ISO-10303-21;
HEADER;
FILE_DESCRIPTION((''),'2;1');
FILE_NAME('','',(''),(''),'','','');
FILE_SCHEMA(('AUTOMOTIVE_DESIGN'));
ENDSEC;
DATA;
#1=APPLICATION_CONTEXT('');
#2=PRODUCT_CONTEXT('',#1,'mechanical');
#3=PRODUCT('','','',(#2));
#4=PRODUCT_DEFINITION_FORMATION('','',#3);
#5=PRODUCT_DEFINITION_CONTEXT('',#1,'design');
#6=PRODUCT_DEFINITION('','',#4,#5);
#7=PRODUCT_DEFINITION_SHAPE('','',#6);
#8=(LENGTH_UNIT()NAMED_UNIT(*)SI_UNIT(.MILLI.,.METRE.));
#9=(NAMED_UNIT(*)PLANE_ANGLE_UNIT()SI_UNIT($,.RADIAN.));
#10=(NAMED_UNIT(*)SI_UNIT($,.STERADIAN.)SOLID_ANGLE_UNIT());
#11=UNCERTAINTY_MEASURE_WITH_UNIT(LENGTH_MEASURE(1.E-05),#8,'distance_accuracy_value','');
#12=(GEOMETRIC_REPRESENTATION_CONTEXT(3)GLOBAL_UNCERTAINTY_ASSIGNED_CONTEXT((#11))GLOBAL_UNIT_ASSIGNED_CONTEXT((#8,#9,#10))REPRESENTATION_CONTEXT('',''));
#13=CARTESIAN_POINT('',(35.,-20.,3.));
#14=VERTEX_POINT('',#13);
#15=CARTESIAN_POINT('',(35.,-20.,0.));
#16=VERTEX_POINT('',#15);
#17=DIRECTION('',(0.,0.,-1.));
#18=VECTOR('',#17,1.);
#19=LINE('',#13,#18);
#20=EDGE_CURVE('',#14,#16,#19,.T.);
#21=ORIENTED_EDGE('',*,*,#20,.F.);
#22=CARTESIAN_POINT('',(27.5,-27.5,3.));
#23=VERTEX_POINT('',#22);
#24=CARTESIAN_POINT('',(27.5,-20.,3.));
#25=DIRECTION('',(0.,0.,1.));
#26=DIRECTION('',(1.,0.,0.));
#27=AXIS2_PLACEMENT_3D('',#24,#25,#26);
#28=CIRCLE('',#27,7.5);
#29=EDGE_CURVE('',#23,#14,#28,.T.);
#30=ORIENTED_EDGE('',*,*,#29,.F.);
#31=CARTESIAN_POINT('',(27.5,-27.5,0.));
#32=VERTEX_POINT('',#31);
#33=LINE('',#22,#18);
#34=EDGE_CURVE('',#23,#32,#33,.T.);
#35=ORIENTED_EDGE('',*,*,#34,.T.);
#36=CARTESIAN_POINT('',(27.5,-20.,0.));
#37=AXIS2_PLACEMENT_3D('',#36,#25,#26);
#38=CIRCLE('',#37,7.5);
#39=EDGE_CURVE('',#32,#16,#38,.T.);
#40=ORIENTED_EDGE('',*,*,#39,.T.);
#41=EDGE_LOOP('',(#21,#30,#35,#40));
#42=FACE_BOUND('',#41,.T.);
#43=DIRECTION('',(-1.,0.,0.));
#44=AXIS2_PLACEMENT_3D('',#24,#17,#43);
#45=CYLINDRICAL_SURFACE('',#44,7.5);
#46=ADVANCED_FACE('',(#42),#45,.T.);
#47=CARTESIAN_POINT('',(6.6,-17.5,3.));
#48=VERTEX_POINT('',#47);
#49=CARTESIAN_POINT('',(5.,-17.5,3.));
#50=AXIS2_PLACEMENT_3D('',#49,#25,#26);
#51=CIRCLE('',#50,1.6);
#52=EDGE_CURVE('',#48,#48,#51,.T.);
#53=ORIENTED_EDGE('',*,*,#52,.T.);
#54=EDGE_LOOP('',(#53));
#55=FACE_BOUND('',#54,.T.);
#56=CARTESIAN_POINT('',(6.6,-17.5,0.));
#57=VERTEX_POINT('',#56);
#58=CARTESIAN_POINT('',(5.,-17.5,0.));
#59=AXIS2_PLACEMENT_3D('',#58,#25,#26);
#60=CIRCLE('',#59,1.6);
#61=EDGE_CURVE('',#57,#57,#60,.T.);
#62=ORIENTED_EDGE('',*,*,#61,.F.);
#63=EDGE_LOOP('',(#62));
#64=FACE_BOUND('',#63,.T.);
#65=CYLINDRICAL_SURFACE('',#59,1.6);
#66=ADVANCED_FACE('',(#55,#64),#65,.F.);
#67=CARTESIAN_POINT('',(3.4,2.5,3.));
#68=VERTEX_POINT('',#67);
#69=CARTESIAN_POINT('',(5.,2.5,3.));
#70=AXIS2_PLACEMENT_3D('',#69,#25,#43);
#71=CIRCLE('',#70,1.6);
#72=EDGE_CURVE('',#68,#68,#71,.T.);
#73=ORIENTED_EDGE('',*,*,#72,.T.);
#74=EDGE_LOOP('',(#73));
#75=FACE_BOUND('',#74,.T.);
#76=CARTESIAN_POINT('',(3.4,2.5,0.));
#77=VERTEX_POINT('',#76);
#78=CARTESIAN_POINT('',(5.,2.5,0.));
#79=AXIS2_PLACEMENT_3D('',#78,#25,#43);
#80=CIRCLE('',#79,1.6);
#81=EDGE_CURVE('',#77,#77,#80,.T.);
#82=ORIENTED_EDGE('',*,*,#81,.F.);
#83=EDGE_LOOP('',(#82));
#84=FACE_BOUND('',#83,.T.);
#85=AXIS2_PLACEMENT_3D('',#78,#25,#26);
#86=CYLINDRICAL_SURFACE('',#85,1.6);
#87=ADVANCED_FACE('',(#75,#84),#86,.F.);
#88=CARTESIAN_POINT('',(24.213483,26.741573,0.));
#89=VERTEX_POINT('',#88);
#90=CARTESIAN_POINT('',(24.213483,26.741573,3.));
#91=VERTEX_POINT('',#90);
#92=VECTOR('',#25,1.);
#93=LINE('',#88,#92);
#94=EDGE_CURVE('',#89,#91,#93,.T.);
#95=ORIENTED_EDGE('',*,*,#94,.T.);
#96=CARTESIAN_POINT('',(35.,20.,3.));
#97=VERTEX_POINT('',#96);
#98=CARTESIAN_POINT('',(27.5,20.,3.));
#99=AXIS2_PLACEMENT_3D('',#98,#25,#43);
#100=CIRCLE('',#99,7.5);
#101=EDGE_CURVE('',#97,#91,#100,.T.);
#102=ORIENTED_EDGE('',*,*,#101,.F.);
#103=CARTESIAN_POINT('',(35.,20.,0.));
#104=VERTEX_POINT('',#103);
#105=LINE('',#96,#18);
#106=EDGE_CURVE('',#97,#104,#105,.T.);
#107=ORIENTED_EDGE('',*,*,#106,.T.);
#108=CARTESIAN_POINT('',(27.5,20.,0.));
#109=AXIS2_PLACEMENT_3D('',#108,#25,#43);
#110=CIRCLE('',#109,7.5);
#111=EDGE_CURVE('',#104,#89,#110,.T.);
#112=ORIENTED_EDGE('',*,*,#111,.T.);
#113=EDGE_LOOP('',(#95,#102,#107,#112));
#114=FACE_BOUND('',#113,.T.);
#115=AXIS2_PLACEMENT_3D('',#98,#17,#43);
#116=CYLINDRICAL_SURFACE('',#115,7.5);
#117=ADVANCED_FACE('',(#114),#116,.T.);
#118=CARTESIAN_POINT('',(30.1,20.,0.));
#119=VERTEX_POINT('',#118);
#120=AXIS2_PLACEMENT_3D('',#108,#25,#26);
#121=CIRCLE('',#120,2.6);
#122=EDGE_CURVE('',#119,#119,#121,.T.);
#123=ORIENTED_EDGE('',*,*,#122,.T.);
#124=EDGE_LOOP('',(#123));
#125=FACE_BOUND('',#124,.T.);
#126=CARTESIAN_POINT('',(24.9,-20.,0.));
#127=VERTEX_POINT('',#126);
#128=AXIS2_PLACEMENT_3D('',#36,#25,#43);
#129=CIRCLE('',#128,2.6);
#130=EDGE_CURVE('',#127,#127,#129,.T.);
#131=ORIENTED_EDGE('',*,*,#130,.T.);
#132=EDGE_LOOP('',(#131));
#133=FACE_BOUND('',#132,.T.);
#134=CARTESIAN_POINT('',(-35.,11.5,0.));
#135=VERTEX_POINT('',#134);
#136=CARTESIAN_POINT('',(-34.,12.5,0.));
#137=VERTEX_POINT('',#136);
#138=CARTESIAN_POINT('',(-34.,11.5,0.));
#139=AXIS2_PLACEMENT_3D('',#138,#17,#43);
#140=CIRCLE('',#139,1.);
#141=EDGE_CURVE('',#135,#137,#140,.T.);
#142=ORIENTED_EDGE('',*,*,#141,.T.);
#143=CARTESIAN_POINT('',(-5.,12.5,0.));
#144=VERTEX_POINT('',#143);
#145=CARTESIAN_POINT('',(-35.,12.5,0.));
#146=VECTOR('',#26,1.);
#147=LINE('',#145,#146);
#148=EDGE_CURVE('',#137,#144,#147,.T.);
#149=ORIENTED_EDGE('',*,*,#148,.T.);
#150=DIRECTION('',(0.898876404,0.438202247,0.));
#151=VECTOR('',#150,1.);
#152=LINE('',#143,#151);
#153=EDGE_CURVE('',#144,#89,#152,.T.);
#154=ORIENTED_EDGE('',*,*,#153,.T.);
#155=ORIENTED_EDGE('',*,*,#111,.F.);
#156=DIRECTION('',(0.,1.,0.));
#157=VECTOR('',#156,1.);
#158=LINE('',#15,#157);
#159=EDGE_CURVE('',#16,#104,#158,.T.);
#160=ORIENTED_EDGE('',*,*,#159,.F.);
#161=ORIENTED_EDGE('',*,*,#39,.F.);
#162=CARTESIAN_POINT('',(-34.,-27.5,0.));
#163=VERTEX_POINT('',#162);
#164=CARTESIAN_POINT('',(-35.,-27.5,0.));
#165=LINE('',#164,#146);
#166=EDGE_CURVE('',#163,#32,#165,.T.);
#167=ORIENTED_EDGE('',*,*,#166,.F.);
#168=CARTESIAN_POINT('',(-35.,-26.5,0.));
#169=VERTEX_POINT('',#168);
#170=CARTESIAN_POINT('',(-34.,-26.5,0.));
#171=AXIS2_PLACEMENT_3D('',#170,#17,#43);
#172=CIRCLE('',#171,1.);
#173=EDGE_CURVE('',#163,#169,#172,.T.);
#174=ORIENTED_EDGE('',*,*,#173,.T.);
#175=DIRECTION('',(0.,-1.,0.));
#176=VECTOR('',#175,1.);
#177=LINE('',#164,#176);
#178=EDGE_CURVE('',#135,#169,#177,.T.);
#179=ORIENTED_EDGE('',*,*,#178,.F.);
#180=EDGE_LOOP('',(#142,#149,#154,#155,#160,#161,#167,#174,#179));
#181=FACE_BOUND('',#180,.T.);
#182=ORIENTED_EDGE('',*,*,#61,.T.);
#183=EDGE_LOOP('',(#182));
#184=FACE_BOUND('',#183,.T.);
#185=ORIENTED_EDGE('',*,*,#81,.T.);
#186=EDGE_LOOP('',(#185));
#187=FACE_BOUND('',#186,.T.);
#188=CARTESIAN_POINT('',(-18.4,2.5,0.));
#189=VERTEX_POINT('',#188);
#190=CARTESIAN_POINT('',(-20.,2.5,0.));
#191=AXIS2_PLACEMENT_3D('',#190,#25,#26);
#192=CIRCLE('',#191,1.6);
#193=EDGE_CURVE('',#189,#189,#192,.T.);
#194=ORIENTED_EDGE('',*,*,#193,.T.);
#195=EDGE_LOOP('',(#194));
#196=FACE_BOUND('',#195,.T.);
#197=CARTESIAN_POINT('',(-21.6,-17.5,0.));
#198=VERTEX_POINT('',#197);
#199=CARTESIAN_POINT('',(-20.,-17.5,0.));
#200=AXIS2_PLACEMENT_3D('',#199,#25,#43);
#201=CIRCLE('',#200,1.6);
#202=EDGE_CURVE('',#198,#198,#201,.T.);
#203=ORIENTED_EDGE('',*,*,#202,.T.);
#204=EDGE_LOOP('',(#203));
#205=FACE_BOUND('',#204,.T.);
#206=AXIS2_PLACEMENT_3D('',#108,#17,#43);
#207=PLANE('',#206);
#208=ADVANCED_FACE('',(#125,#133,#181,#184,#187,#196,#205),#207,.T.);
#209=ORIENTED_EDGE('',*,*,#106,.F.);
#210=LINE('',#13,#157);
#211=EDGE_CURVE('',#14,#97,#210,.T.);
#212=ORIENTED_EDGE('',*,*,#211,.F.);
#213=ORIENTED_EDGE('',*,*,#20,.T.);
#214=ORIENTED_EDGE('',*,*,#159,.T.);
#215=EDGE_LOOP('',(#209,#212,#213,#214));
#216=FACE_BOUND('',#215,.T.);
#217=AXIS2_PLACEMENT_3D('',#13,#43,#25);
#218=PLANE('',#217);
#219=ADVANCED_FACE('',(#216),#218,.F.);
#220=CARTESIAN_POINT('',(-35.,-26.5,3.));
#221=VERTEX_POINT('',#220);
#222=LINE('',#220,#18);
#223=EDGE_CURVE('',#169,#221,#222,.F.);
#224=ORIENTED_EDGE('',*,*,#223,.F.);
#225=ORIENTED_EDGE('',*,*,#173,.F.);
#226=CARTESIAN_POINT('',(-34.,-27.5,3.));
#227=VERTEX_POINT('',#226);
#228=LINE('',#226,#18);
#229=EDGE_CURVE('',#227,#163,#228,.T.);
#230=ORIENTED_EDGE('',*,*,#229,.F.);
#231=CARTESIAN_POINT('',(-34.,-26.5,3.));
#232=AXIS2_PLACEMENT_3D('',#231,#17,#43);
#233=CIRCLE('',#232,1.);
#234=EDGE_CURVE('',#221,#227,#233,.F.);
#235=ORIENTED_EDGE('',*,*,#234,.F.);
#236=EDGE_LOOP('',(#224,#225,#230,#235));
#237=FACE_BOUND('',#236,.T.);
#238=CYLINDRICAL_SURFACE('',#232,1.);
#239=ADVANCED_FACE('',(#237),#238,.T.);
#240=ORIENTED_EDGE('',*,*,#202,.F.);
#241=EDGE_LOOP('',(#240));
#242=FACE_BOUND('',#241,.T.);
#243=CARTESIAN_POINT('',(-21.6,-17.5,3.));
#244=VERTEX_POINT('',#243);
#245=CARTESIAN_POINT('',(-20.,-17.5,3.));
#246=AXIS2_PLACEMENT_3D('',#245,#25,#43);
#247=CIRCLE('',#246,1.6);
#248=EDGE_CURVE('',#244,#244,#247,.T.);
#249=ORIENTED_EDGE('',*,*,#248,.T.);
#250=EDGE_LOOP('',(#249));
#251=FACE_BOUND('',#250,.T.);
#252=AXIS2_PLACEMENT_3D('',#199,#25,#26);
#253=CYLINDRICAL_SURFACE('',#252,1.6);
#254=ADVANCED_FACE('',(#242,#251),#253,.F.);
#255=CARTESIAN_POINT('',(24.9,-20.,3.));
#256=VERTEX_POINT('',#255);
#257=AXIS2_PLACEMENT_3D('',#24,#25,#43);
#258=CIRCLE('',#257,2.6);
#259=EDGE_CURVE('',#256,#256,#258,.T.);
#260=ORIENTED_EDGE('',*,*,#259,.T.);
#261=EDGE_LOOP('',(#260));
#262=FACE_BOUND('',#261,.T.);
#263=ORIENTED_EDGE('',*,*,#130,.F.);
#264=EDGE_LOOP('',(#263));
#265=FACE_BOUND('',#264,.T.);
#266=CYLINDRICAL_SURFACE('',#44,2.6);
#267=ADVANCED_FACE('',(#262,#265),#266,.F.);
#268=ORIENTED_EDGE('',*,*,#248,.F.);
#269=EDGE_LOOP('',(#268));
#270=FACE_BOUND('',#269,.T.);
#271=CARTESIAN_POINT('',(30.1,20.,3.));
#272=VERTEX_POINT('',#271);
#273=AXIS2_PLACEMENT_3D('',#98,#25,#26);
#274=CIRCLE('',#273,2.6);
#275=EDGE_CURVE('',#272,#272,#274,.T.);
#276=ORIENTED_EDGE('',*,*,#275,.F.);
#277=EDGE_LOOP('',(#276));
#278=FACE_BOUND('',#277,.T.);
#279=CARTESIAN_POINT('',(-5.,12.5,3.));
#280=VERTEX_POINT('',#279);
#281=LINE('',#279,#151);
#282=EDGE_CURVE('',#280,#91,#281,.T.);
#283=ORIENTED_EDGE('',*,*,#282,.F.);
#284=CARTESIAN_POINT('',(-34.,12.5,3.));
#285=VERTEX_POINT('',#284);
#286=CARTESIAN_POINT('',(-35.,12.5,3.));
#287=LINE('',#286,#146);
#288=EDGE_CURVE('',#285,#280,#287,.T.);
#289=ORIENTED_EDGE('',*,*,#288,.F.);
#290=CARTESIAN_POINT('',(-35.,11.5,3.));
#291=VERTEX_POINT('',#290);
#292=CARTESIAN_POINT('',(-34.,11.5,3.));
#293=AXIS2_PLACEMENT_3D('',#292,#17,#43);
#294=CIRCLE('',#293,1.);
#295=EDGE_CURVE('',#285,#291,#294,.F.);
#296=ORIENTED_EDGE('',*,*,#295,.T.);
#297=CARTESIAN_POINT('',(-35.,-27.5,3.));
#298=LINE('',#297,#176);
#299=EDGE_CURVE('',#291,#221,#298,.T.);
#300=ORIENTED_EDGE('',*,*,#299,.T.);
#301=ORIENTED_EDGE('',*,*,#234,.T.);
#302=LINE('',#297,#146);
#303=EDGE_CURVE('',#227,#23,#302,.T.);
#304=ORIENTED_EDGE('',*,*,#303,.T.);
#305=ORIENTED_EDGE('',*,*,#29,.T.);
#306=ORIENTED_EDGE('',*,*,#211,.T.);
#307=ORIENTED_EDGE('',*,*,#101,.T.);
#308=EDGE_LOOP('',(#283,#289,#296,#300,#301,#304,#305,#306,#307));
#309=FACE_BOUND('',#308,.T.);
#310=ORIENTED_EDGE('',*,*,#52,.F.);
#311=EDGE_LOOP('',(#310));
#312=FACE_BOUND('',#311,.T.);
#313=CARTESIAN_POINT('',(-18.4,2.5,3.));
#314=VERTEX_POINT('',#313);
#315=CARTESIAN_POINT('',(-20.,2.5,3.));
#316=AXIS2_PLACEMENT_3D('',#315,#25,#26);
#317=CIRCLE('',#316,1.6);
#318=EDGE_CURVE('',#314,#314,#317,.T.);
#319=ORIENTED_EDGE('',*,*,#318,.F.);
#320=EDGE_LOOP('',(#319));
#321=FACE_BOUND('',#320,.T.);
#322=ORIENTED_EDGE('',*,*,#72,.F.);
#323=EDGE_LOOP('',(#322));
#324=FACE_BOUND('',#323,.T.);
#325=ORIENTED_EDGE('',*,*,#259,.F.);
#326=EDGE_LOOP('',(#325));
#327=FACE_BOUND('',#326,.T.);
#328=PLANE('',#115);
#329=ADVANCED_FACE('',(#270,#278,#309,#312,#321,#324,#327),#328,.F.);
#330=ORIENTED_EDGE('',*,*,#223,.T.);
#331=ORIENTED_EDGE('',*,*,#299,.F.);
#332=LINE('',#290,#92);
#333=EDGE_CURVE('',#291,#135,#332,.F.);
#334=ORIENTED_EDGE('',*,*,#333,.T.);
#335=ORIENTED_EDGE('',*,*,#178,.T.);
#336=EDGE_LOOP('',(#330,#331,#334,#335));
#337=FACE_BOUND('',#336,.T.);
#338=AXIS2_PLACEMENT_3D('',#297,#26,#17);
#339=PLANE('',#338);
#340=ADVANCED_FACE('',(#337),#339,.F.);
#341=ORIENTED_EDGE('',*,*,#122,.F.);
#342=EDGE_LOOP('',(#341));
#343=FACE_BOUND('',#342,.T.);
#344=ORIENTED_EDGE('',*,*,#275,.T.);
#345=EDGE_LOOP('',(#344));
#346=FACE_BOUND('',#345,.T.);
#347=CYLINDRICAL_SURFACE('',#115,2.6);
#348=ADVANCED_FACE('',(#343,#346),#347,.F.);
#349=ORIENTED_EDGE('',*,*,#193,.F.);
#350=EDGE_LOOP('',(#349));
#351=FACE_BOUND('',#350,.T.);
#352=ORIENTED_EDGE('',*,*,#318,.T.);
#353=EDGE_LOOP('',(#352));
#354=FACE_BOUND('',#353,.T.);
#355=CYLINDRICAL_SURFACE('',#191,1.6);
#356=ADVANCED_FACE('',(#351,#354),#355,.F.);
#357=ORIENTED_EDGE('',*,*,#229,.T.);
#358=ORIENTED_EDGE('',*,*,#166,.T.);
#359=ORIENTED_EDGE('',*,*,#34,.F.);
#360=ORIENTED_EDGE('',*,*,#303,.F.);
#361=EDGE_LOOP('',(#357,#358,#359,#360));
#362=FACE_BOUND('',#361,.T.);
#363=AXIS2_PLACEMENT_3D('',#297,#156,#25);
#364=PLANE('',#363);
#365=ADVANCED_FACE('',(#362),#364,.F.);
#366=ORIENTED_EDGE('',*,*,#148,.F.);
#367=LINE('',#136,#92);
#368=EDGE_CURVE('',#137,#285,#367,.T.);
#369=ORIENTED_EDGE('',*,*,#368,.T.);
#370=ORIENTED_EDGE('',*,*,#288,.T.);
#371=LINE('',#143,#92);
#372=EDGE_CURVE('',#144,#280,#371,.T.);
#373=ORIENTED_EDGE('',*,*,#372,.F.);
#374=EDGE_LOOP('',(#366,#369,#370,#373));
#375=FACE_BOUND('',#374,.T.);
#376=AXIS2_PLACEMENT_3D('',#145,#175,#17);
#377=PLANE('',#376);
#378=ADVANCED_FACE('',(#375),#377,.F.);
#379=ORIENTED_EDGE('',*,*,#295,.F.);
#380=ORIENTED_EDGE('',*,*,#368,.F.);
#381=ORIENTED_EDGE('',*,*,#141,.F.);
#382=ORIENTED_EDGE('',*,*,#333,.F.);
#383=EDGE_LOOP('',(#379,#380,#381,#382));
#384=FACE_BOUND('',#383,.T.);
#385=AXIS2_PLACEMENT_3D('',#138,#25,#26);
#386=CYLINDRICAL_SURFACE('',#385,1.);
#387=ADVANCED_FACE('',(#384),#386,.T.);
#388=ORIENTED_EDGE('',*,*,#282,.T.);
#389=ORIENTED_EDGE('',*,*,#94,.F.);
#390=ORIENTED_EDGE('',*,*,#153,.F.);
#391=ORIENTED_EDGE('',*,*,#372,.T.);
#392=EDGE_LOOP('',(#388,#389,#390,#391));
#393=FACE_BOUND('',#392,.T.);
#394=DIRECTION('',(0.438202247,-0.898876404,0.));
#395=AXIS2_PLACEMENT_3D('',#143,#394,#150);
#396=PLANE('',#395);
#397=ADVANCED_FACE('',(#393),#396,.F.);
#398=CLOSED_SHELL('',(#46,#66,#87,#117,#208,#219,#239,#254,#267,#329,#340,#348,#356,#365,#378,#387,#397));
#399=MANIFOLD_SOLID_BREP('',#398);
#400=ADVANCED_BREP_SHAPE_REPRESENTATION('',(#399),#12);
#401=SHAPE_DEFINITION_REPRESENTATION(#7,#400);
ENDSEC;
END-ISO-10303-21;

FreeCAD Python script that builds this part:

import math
import FreeCAD as App
import Part
import Sketcher

V = App.Vector
Q = App.Units.Quantity


def edges_at(feature, points):
    """Names of the edges that pass closest to the given points."""
    edges = feature.Shape.Edges
    near = lambda p: min(range(len(edges)), key=lambda i: edges[i].distToShape(Part.Vertex(*p))[0])
    return sorted({f"Edge{near(p) + 1}" for p in points})

doc = App.newDocument("Part")
body = doc.addObject("PartDesign::Body", "Body")

sketch1 = body.newObject("Sketcher::SketchObject", "Sketch")
sketch1.AttachmentSupport = (doc.getObject("XY_Plane"), [""])
sketch1.MapMode = "FlatFace"
sketch1.addGeometry([
    Part.LineSegment(V(-35, -27.5, 0), V(27.5, -27.5, 0)),
    Part.ArcOfCircle(Part.Circle(V(27.5, -20, 0), V(0, 0, 1), 7.5), math.radians(-90), math.radians(0)),
    Part.LineSegment(V(35, -20, 0), V(35, 20, 0)),
    Part.ArcOfCircle(Part.Circle(V(27.5, 20, 0), V(0, 0, 1), 7.5), math.radians(0), math.radians(90)),
    Part.LineSegment(V(27.5, 27.5, 0), V(-35, 27.5, 0)),
    Part.LineSegment(V(-35, 27.5, 0), V(-35, -27.5, 0)),
    Part.Circle(V(27.5, -20, 0), V(0, 0, 1), 2.6),
    Part.Circle(V(27.5, 20, 0), V(0, 0, 1), 2.6),
], False)
sketch1.addConstraint([
    Sketcher.Constraint("Tangent", 0, 2, 1, 1),
    Sketcher.Constraint("Tangent", 1, 2, 2, 1),
    Sketcher.Constraint("Tangent", 2, 2, 3, 1),
    Sketcher.Constraint("Tangent", 3, 2, 4, 1),
    Sketcher.Constraint("Coincident", 4, 2, 5, 1),
    Sketcher.Constraint("Coincident", 5, 2, 0, 1),
    Sketcher.Constraint("Horizontal", 0),
    Sketcher.Constraint("Vertical", 2),
    Sketcher.Constraint("Horizontal", 4),
    Sketcher.Constraint("Vertical", 5),
    Sketcher.Constraint("Coincident", 6, 3, 1, 3),
    Sketcher.Constraint("Coincident", 7, 3, 3, 3),
    Sketcher.Constraint("Equal", 1, 3),
    Sketcher.Constraint("Equal", 6, 7),
    Sketcher.Constraint("Diameter", 6, Q("5.2 mm")),
    Sketcher.Constraint("Radius", 1, Q("7.5 mm")),
    Sketcher.Constraint("DistanceY", 2, 1, 2, 2, Q("40 mm")),
    Sketcher.Constraint("DistanceX", 0, 1, 0, 2, Q("62.5 mm")),
    Sketcher.Constraint("DistanceY", 1, 3, -1, 1, Q("20 mm")),
    Sketcher.Constraint("DistanceX", -1, 1, 1, 2, Q("35 mm")),
])
pad1 = body.newObject("PartDesign::Pad", "Pad")
pad1.Profile = sketch1
pad1.Length = 3

sketch2 = body.newObject("Sketcher::SketchObject", "Sketch001")
sketch2.AttachmentSupport = (doc.getObject("XY_Plane"), [""])
sketch2.MapMode = "FlatFace"
sketch2.addGeometry([
    Part.LineSegment(V(-35, 12.5, 0), V(-5, 12.5, 0)),
    Part.LineSegment(V(-5, 12.5, 0), V(24.213483, 26.741573, 0)),
    Part.ArcOfCircle(Part.Circle(V(27.5, 20, 0), V(0, 0, 1), 7.5), math.radians(90), math.radians(115.989234)),
    Part.LineSegment(V(27.5, 27.5, 0), V(27.5, 37.5, 0)),
    Part.LineSegment(V(27.5, 37.5, 0), V(-35, 37.5, 0)),
    Part.LineSegment(V(-35, 37.5, 0), V(-35, 12.5, 0)),
], False)
sketch2.addConstraint([
    Sketcher.Constraint("Coincident", 0, 2, 1, 1),
    Sketcher.Constraint("Tangent", 1, 2, 2, 2),
    Sketcher.Constraint("Coincident", 2, 1, 3, 1),
    Sketcher.Constraint("Coincident", 3, 2, 4, 1),
    Sketcher.Constraint("Coincident", 4, 2, 5, 1),
    Sketcher.Constraint("Coincident", 5, 2, 0, 1),
    Sketcher.Constraint("Horizontal", 0),
    Sketcher.Constraint("Vertical", 3),
    Sketcher.Constraint("Horizontal", 4),
    Sketcher.Constraint("Vertical", 5),
    Sketcher.Constraint("Radius", 2, Q("7.5 mm")),
    Sketcher.Constraint("DistanceX", 0, 1, 0, 2, Q("30 mm")),
    Sketcher.Constraint("DistanceY", 3, 1, 3, 2, Q("10 mm")),
    Sketcher.Constraint("DistanceY", 5, 2, 5, 1, Q("25 mm")),
    Sketcher.Constraint("DistanceX", 4, 2, 4, 1, Q("62.5 mm")),
    Sketcher.Constraint("DistanceY", -1, 1, 2, 3, Q("20 mm")),
    Sketcher.Constraint("DistanceX", 0, 2, -1, 1, Q("5 mm")),
    Sketcher.Constraint("Distance", 1, Q("32.5 mm")),
])
pocket1 = body.newObject("PartDesign::Pocket", "Pocket")
pocket1.Profile = sketch2
pocket1.Length = 3
pocket1.Reversed = True

sketch3 = body.newObject("Sketcher::SketchObject", "Sketch002")
sketch3.AttachmentSupport = (doc.getObject("XY_Plane"), [""])
sketch3.MapMode = "FlatFace"
sketch3.AttachmentOffset = App.Placement(V(0, 0, 3), App.Rotation())
sketch3.addGeometry([
    Part.Circle(V(-20, 2.5, 0), V(0, 0, 1), 1.6),
    Part.Circle(V(5, 2.5, 0), V(0, 0, 1), 1.6),
    Part.Circle(V(5, -17.5, 0), V(0, 0, 1), 1.6),
    Part.Circle(V(-20, -17.5, 0), V(0, 0, 1), 1.6),
], False)
sketch3.addConstraint([
    Sketcher.Constraint("Equal", 0, 1),
    Sketcher.Constraint("Equal", 1, 2),
    Sketcher.Constraint("Equal", 2, 3),
    Sketcher.Constraint("Horizontal", 0, 3, 1, 3),
    Sketcher.Constraint("Horizontal", 2, 3, 3, 3),
    Sketcher.Constraint("Vertical", 1, 3, 2, 3),
    Sketcher.Constraint("Vertical", 0, 3, 3, 3),
    Sketcher.Constraint("Diameter", 0, Q("3.2 mm")),
    Sketcher.Constraint("DistanceX", 0, 3, -1, 1, Q("20 mm")),
    Sketcher.Constraint("DistanceX", -1, 1, 1, 3, Q("5 mm")),
    Sketcher.Constraint("DistanceY", 2, 3, 1, 3, Q("20 mm")),
    Sketcher.Constraint("DistanceY", -1, 1, 0, 3, Q("2.5 mm")),
])
pocket2 = body.newObject("PartDesign::Pocket", "Pocket001")
pocket2.Profile = sketch3
pocket2.Length = 3
doc.recompute()

fillet = body.newObject("PartDesign::Fillet", "Fillet")
fillet.Base = (pocket2, edges_at(pocket2, [(-35, -27.5, 1.5), (-35, 12.5, 1.5)]))
fillet.Radius = 1

doc.recompute()
